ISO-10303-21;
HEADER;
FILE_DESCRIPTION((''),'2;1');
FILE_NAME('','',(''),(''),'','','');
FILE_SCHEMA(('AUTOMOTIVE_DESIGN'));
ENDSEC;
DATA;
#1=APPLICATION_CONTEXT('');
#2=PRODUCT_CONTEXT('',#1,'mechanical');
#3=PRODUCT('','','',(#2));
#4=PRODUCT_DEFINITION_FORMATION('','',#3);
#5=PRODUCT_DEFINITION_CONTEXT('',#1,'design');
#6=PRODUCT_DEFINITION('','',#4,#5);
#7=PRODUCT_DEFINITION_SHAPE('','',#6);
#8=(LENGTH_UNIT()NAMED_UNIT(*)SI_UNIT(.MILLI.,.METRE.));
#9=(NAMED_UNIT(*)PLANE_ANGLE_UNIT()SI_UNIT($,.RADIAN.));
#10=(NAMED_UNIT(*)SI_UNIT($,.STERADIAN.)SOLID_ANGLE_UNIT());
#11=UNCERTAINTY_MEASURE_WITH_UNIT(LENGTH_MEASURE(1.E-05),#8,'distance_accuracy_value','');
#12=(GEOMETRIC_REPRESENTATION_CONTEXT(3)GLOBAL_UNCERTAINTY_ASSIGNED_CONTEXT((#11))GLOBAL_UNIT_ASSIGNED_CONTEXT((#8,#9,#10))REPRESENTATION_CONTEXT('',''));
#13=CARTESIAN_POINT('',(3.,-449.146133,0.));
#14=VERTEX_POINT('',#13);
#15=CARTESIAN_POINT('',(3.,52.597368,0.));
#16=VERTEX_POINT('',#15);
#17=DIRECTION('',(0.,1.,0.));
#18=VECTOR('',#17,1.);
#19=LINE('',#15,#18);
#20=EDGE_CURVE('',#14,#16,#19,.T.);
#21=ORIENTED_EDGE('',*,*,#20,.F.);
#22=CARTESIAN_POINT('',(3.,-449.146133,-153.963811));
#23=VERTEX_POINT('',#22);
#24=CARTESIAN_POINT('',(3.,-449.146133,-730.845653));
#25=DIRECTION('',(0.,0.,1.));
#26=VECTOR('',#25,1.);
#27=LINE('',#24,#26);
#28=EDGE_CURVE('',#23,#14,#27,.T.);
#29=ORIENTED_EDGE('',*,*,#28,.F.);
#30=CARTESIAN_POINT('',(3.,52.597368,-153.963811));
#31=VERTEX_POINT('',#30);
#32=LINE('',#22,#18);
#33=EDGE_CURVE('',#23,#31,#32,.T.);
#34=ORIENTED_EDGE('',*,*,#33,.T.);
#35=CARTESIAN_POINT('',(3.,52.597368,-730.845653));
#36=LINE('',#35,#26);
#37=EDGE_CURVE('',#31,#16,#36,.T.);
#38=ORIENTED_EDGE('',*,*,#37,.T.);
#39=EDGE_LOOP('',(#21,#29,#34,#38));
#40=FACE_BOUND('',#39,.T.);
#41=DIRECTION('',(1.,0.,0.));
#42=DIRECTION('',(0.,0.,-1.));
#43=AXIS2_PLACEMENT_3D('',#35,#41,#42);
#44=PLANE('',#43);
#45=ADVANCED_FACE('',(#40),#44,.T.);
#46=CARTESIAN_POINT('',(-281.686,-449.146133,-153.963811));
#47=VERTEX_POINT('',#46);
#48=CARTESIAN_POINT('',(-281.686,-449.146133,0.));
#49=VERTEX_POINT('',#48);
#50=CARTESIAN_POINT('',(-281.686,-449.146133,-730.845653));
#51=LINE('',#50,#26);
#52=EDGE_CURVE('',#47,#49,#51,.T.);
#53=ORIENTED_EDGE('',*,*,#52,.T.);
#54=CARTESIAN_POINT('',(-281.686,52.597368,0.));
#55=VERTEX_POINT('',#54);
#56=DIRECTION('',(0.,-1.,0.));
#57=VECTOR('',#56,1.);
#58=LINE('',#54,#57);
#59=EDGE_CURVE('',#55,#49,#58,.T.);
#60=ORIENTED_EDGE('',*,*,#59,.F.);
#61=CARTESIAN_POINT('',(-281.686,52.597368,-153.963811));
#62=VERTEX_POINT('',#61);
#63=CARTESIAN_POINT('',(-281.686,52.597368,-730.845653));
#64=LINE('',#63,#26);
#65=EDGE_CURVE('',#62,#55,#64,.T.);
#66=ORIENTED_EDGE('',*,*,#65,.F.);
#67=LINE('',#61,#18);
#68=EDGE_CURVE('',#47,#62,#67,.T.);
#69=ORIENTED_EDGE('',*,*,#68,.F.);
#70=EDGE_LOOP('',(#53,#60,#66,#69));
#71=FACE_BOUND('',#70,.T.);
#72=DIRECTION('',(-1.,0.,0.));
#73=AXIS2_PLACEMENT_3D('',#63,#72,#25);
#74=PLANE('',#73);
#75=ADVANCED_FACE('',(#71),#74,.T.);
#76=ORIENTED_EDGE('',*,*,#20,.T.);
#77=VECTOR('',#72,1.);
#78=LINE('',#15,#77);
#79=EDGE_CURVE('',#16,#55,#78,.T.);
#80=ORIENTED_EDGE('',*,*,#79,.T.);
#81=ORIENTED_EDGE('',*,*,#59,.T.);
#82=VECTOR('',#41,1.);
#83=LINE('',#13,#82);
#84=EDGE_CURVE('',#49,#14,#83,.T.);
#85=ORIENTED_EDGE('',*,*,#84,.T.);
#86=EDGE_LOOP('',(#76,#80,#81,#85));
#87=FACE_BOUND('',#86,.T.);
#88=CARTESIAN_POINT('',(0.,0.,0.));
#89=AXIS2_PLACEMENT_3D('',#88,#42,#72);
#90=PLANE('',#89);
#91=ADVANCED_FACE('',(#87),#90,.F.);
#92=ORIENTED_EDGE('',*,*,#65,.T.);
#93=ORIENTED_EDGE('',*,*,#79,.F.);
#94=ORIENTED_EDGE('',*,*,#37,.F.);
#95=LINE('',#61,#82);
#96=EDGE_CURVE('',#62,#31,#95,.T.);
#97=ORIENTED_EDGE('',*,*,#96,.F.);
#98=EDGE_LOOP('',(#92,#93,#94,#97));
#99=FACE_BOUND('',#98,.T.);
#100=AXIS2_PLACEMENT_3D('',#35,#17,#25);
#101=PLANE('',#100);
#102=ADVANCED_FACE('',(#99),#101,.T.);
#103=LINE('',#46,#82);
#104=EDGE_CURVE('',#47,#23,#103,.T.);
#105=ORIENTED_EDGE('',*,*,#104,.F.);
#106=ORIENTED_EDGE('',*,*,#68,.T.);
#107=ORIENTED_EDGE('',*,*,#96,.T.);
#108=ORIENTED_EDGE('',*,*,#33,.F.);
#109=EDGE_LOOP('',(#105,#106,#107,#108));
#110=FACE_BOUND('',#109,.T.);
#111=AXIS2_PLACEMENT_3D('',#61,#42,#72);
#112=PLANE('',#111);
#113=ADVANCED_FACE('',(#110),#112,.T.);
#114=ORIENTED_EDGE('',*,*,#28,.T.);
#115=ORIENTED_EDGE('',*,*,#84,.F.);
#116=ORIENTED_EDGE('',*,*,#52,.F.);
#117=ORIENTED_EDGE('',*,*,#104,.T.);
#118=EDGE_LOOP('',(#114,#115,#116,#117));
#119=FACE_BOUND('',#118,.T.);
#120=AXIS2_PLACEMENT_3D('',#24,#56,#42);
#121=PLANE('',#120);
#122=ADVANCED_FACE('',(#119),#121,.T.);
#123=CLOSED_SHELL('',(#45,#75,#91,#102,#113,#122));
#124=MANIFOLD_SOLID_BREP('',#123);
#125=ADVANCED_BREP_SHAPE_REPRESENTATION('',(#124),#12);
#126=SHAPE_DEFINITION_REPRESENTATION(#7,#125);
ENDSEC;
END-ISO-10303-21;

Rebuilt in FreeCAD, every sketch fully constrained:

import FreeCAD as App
import Part
import Sketcher

doc = App.newDocument("Part")
body = doc.addObject("PartDesign::Body", "Body")

# Sketch on XY plane
sketch1 = body.newObject("Sketcher::SketchObject", "Sketch")
sketch1.AttachmentSupport = (doc.getObject("XY_Plane"), [""])
sketch1.MapMode = "FlatFace"
sketch1.addGeometry([
    Part.LineSegment(App.Vector(-281.686, 52.597368, 0), App.Vector(-281.686, -449.146133, 0)),
    Part.LineSegment(App.Vector(-281.686, -449.146133, 0), App.Vector(3, -449.146133, 0)),
    Part.LineSegment(App.Vector(3, -449.146133, 0), App.Vector(3, 52.597368, 0)),
    Part.LineSegment(App.Vector(3, 52.597368, 0), App.Vector(-281.686, 52.597368, 0)),
], False)
sketch1.addConstraint([
    Sketcher.Constraint("Coincident", 0, 2, 1, 1),
    Sketcher.Constraint("Coincident", 1, 2, 2, 1),
    Sketcher.Constraint("Coincident", 2, 2, 3, 1),
    Sketcher.Constraint("Coincident", 3, 2, 0, 1),
    Sketcher.Constraint("Vertical", 0),
    Sketcher.Constraint("Horizontal", 1),
    Sketcher.Constraint("Vertical", 2),
    Sketcher.Constraint("Horizontal", 3),
    Sketcher.Constraint("DistanceX", -1, 1, 1, 2, 3.0),
    Sketcher.Constraint("DistanceX", 1, 1, 1, 2, 284.686),
    Sketcher.Constraint("DistanceY", 0, 2, 0, 1, 501.743501),
    Sketcher.Constraint("DistanceY", -1, 1, 2, 2, 52.597368),
])
pad1 = body.newObject("PartDesign::Pad", "Pad")
pad1.Profile = sketch1
pad1.Length = 153.963811
pad1.Reversed = True

doc.recompute()
